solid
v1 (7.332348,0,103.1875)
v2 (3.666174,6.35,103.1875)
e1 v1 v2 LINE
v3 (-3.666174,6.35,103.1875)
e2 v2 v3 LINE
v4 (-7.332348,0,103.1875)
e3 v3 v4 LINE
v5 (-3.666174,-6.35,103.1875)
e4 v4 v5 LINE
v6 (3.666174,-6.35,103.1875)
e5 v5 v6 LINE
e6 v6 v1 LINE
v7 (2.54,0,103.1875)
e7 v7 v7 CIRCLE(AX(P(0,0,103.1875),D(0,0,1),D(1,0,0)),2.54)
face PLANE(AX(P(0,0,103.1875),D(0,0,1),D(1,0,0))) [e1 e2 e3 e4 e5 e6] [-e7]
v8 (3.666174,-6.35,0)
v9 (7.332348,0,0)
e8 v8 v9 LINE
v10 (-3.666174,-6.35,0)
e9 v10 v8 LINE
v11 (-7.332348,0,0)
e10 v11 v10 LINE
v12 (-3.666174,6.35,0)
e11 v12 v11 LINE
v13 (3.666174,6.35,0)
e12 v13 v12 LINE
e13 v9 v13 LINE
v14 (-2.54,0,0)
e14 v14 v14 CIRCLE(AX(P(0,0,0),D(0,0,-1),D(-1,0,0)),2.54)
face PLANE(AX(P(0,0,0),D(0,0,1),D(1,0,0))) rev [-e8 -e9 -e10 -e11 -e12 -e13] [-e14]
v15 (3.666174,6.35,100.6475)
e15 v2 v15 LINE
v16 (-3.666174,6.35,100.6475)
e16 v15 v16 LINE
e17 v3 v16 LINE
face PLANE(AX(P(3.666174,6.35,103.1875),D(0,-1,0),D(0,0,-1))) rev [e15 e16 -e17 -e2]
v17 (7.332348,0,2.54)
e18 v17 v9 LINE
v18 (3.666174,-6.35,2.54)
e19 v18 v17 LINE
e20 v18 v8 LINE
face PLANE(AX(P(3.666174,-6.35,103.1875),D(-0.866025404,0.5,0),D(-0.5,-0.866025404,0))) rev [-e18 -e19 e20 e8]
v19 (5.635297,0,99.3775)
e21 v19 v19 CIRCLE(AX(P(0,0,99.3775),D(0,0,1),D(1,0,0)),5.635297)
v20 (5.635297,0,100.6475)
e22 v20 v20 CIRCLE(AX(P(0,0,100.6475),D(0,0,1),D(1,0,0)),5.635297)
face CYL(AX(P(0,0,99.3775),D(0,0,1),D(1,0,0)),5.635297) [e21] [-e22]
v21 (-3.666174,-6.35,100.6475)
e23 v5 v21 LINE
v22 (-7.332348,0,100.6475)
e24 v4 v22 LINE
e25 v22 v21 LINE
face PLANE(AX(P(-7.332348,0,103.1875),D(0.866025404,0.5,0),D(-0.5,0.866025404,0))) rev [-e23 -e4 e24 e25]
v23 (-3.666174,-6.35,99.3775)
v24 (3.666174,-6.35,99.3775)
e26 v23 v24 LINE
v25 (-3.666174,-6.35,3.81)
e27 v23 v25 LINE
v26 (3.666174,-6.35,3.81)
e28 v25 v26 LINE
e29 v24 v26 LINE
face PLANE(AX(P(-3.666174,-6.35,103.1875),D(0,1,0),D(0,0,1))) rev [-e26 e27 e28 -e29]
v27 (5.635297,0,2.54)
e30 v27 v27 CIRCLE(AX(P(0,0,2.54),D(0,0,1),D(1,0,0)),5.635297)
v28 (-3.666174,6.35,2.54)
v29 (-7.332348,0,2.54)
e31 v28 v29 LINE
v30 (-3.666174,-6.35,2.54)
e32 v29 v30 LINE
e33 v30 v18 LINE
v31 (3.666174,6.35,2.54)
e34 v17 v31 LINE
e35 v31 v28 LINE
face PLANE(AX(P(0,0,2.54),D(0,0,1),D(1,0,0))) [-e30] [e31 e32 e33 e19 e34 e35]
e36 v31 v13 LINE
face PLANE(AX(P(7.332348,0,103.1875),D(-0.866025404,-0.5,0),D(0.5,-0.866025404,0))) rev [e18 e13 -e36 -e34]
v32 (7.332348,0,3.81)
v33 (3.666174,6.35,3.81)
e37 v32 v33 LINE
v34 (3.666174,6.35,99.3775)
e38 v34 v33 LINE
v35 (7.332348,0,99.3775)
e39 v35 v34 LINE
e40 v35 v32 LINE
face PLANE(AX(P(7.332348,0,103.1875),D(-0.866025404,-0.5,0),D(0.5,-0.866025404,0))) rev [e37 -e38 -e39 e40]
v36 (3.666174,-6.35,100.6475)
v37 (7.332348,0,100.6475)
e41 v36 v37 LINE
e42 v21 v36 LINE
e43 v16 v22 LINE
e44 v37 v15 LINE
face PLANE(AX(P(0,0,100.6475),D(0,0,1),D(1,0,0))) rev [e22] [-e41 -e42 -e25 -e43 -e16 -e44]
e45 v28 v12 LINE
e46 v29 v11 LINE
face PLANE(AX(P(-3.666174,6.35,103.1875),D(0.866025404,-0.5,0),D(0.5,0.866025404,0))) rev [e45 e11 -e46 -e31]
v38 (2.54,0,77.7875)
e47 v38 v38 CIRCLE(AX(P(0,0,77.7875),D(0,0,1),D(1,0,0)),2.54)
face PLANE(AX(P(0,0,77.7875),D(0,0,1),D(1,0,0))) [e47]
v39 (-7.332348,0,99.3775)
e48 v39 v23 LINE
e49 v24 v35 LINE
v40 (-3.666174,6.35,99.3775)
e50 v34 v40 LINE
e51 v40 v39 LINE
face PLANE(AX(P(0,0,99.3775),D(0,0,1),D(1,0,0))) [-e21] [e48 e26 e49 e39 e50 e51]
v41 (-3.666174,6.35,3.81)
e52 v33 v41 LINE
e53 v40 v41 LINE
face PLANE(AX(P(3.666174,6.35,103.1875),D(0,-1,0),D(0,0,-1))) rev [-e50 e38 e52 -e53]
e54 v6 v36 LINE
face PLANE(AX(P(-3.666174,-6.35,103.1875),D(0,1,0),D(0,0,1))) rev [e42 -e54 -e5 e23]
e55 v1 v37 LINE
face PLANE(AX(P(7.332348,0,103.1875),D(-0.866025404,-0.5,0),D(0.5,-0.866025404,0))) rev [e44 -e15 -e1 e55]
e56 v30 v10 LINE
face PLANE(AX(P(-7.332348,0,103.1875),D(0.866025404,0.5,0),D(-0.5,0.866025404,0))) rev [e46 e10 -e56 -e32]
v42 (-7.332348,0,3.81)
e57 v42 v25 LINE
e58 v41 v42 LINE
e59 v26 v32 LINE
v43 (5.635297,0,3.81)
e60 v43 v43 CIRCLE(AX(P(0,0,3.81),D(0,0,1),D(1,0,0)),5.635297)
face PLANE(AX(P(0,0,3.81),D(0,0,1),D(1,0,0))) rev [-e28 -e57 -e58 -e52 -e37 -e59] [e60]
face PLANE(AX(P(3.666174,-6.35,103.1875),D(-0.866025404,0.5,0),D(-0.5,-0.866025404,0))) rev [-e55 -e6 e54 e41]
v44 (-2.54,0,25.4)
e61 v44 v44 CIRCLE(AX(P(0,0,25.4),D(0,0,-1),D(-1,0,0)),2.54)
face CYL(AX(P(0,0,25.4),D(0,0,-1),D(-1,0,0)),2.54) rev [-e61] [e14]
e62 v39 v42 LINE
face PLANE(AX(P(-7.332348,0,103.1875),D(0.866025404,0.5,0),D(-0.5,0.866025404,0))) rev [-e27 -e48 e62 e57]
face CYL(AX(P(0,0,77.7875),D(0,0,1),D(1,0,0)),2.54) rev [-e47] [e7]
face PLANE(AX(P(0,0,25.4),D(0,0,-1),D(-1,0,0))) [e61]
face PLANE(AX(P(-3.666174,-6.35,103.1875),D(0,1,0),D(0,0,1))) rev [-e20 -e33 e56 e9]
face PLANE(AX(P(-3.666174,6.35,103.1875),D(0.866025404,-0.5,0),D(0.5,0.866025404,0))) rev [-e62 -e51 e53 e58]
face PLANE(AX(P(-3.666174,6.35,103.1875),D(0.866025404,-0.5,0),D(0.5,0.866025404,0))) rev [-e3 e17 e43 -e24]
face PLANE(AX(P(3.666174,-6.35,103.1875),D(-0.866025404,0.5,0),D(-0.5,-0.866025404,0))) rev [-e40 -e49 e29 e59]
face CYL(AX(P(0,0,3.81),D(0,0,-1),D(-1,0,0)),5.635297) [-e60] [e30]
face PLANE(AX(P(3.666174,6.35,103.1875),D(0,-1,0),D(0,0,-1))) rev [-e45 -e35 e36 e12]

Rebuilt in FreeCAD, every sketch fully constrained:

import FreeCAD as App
import Part
import Sketcher

V = App.Vector
Q = App.Units.Quantity

doc = App.newDocument("Part")
body = doc.addObject("PartDesign::Body", "Body")

# Sketch on XY plane
sketch1 = body.newObject("Sketcher::SketchObject", "Sketch")
sketch1.AttachmentSupport = (doc.getObject("XY_Plane"), [""])
sketch1.MapMode = "FlatFace"
sketch1.addGeometry([
    Part.LineSegment(V(7, 0, 0), V(4, 6, 0)),  # 0
    Part.LineSegment(V(4, 6, 0), V(-4, 6, 0)),  # 1
    Part.LineSegment(V(-4, 6, 0), V(-7, 0, 0)),  # 2
    Part.LineSegment(V(-7, 0, 0), V(-4, -6, 0)),  # 3
    Part.LineSegment(V(-4, -6, 0), V(4, -6, 0)),  # 4
    Part.LineSegment(V(4, -6, 0), V(7, 0, 0)),  # 5
], False)
sketch1.addConstraint([
    Sketcher.Constraint("Coincident", 0, 2, 1, 1),
    Sketcher.Constraint("Coincident", 1, 2, 2, 1),
    Sketcher.Constraint("Coincident", 2, 2, 3, 1),
    Sketcher.Constraint("Coincident", 3, 2, 4, 1),
    Sketcher.Constraint("Coincident", 4, 2, 5, 1),
    Sketcher.Constraint("Coincident", 5, 2, 0, 1),
    Sketcher.Constraint("Horizontal", 1),
    Sketcher.Constraint("Horizontal", 4),
    Sketcher.Constraint("Symmetric", 0, 2, 3, 2, -1, 1),
    Sketcher.Constraint("Symmetric", 2, 2, 5, 2, -1, 1),
    Sketcher.Constraint("PointOnObject", 2, 2, -1),
    Sketcher.Constraint("Parallel", 2, 5),
    Sketcher.Constraint("Vertical", 1, 2, 3, 2),
    Sketcher.Constraint("Angle", 0, Q("120 deg")),
    Sketcher.Constraint("DistanceY", 3, 2, 1, 2, Q("0.5 in")),
    Sketcher.Constraint("DistanceX", 1, 2, 1, 1, Q("7.332348 mm")),
])
pad1 = body.newObject("PartDesign::Pad", "Pad")
pad1.Profile = sketch1
pad1.Length = Q("4.0625 in")

# Sketch on XY plane
sketch2 = body.newObject("Sketcher::SketchObject", "Sketch001")
sketch2.AttachmentSupport = (doc.getObject("XY_Plane"), [""])
sketch2.MapMode = "FlatFace"
sketch2.AttachmentOffset = App.Placement(V(0, 0, 0.1 * 25.4), App.Rotation())
sketch2.addGeometry([
    Part.Circle(V(0, 0, 0), V(0, 0, 1), 10),
    Part.Circle(V(0, 0, 0), V(0, 0, 1), 6),
], False)
sketch2.addConstraint([
    Sketcher.Constraint("Coincident", 0, 3, -1, 1),
    Sketcher.Constraint("Coincident", 1, 3, -1, 1),
    Sketcher.Constraint("Diameter", 0, Q("19.819334 mm")),
    Sketcher.Constraint("Diameter", 1, Q("11.270594 mm")),
])
pocket1 = body.newObject("PartDesign::Pocket", "Pocket")
pocket1.Profile = sketch2
pocket1.Length = Q("0.05 in")
pocket1.Reversed = True

# Sketch on XY plane
sketch3 = body.newObject("Sketcher::SketchObject", "Sketch002")
sketch3.AttachmentSupport = (doc.getObject("XY_Plane"), [""])
sketch3.MapMode = "FlatFace"
sketch3.addGeometry(Part.Circle(V(0, 0, 0), V(0, 0, 1), 2.5), False)
sketch3.addConstraint([
    Sketcher.Constraint("Coincident", 0, 3, -1, 1),
    Sketcher.Constraint("Diameter", 0, Q("0.2 in")),
])
pocket2 = body.newObject("PartDesign::Pocket", "Pocket001")
pocket2.Profile = sketch3
pocket2.Length = Q("1 in")
pocket2.Reversed = True

# Sketch on XY plane
sketch4 = body.newObject("Sketcher::SketchObject", "Sketch003")
sketch4.AttachmentSupport = (doc.getObject("XY_Plane"), [""])
sketch4.MapMode = "FlatFace"
sketch4.AttachmentOffset = App.Placement(V(0, 0, 3.9625 * 25.4), App.Rotation())
sketch4.addGeometry([
    Part.Circle(V(0, 0, 0), V(0, 0, 1), 26),
    Part.Circle(V(0, 0, 0), V(0, 0, 1), 6),
], False)
sketch4.addConstraint([
    Sketcher.Constraint("Coincident", 0, 3, -1, 1),
    Sketcher.Constraint("Coincident", 1, 3, -1, 1),
    Sketcher.Constraint("Diameter", 0, Q("52.268459 mm")),
    Sketcher.Constraint("Diameter", 1, Q("11.270594 mm")),
])
pocket3 = body.newObject("PartDesign::Pocket", "Pocket002")
pocket3.Profile = sketch4
pocket3.Length = Q("0.05 in")

# Sketch on XY plane
sketch5 = body.newObject("Sketcher::SketchObject", "Sketch004")
sketch5.AttachmentSupport = (doc.getObject("XY_Plane"), [""])
sketch5.MapMode = "FlatFace"
sketch5.AttachmentOffset = App.Placement(V(0, 0, 4.0625 * 25.4), App.Rotation())
sketch5.addGeometry(Part.Circle(V(0, 0, 0), V(0, 0, 1), 2.5), False)
sketch5.addConstraint([
    Sketcher.Constraint("Coincident", 0, 3, -1, 1),
    Sketcher.Constraint("Diameter", 0, Q("0.2 in")),
])
pocket4 = body.newObject("PartDesign::Pocket", "Pocket003")
pocket4.Profile = sketch5
pocket4.Length = Q("1 in")

doc.recompute()
